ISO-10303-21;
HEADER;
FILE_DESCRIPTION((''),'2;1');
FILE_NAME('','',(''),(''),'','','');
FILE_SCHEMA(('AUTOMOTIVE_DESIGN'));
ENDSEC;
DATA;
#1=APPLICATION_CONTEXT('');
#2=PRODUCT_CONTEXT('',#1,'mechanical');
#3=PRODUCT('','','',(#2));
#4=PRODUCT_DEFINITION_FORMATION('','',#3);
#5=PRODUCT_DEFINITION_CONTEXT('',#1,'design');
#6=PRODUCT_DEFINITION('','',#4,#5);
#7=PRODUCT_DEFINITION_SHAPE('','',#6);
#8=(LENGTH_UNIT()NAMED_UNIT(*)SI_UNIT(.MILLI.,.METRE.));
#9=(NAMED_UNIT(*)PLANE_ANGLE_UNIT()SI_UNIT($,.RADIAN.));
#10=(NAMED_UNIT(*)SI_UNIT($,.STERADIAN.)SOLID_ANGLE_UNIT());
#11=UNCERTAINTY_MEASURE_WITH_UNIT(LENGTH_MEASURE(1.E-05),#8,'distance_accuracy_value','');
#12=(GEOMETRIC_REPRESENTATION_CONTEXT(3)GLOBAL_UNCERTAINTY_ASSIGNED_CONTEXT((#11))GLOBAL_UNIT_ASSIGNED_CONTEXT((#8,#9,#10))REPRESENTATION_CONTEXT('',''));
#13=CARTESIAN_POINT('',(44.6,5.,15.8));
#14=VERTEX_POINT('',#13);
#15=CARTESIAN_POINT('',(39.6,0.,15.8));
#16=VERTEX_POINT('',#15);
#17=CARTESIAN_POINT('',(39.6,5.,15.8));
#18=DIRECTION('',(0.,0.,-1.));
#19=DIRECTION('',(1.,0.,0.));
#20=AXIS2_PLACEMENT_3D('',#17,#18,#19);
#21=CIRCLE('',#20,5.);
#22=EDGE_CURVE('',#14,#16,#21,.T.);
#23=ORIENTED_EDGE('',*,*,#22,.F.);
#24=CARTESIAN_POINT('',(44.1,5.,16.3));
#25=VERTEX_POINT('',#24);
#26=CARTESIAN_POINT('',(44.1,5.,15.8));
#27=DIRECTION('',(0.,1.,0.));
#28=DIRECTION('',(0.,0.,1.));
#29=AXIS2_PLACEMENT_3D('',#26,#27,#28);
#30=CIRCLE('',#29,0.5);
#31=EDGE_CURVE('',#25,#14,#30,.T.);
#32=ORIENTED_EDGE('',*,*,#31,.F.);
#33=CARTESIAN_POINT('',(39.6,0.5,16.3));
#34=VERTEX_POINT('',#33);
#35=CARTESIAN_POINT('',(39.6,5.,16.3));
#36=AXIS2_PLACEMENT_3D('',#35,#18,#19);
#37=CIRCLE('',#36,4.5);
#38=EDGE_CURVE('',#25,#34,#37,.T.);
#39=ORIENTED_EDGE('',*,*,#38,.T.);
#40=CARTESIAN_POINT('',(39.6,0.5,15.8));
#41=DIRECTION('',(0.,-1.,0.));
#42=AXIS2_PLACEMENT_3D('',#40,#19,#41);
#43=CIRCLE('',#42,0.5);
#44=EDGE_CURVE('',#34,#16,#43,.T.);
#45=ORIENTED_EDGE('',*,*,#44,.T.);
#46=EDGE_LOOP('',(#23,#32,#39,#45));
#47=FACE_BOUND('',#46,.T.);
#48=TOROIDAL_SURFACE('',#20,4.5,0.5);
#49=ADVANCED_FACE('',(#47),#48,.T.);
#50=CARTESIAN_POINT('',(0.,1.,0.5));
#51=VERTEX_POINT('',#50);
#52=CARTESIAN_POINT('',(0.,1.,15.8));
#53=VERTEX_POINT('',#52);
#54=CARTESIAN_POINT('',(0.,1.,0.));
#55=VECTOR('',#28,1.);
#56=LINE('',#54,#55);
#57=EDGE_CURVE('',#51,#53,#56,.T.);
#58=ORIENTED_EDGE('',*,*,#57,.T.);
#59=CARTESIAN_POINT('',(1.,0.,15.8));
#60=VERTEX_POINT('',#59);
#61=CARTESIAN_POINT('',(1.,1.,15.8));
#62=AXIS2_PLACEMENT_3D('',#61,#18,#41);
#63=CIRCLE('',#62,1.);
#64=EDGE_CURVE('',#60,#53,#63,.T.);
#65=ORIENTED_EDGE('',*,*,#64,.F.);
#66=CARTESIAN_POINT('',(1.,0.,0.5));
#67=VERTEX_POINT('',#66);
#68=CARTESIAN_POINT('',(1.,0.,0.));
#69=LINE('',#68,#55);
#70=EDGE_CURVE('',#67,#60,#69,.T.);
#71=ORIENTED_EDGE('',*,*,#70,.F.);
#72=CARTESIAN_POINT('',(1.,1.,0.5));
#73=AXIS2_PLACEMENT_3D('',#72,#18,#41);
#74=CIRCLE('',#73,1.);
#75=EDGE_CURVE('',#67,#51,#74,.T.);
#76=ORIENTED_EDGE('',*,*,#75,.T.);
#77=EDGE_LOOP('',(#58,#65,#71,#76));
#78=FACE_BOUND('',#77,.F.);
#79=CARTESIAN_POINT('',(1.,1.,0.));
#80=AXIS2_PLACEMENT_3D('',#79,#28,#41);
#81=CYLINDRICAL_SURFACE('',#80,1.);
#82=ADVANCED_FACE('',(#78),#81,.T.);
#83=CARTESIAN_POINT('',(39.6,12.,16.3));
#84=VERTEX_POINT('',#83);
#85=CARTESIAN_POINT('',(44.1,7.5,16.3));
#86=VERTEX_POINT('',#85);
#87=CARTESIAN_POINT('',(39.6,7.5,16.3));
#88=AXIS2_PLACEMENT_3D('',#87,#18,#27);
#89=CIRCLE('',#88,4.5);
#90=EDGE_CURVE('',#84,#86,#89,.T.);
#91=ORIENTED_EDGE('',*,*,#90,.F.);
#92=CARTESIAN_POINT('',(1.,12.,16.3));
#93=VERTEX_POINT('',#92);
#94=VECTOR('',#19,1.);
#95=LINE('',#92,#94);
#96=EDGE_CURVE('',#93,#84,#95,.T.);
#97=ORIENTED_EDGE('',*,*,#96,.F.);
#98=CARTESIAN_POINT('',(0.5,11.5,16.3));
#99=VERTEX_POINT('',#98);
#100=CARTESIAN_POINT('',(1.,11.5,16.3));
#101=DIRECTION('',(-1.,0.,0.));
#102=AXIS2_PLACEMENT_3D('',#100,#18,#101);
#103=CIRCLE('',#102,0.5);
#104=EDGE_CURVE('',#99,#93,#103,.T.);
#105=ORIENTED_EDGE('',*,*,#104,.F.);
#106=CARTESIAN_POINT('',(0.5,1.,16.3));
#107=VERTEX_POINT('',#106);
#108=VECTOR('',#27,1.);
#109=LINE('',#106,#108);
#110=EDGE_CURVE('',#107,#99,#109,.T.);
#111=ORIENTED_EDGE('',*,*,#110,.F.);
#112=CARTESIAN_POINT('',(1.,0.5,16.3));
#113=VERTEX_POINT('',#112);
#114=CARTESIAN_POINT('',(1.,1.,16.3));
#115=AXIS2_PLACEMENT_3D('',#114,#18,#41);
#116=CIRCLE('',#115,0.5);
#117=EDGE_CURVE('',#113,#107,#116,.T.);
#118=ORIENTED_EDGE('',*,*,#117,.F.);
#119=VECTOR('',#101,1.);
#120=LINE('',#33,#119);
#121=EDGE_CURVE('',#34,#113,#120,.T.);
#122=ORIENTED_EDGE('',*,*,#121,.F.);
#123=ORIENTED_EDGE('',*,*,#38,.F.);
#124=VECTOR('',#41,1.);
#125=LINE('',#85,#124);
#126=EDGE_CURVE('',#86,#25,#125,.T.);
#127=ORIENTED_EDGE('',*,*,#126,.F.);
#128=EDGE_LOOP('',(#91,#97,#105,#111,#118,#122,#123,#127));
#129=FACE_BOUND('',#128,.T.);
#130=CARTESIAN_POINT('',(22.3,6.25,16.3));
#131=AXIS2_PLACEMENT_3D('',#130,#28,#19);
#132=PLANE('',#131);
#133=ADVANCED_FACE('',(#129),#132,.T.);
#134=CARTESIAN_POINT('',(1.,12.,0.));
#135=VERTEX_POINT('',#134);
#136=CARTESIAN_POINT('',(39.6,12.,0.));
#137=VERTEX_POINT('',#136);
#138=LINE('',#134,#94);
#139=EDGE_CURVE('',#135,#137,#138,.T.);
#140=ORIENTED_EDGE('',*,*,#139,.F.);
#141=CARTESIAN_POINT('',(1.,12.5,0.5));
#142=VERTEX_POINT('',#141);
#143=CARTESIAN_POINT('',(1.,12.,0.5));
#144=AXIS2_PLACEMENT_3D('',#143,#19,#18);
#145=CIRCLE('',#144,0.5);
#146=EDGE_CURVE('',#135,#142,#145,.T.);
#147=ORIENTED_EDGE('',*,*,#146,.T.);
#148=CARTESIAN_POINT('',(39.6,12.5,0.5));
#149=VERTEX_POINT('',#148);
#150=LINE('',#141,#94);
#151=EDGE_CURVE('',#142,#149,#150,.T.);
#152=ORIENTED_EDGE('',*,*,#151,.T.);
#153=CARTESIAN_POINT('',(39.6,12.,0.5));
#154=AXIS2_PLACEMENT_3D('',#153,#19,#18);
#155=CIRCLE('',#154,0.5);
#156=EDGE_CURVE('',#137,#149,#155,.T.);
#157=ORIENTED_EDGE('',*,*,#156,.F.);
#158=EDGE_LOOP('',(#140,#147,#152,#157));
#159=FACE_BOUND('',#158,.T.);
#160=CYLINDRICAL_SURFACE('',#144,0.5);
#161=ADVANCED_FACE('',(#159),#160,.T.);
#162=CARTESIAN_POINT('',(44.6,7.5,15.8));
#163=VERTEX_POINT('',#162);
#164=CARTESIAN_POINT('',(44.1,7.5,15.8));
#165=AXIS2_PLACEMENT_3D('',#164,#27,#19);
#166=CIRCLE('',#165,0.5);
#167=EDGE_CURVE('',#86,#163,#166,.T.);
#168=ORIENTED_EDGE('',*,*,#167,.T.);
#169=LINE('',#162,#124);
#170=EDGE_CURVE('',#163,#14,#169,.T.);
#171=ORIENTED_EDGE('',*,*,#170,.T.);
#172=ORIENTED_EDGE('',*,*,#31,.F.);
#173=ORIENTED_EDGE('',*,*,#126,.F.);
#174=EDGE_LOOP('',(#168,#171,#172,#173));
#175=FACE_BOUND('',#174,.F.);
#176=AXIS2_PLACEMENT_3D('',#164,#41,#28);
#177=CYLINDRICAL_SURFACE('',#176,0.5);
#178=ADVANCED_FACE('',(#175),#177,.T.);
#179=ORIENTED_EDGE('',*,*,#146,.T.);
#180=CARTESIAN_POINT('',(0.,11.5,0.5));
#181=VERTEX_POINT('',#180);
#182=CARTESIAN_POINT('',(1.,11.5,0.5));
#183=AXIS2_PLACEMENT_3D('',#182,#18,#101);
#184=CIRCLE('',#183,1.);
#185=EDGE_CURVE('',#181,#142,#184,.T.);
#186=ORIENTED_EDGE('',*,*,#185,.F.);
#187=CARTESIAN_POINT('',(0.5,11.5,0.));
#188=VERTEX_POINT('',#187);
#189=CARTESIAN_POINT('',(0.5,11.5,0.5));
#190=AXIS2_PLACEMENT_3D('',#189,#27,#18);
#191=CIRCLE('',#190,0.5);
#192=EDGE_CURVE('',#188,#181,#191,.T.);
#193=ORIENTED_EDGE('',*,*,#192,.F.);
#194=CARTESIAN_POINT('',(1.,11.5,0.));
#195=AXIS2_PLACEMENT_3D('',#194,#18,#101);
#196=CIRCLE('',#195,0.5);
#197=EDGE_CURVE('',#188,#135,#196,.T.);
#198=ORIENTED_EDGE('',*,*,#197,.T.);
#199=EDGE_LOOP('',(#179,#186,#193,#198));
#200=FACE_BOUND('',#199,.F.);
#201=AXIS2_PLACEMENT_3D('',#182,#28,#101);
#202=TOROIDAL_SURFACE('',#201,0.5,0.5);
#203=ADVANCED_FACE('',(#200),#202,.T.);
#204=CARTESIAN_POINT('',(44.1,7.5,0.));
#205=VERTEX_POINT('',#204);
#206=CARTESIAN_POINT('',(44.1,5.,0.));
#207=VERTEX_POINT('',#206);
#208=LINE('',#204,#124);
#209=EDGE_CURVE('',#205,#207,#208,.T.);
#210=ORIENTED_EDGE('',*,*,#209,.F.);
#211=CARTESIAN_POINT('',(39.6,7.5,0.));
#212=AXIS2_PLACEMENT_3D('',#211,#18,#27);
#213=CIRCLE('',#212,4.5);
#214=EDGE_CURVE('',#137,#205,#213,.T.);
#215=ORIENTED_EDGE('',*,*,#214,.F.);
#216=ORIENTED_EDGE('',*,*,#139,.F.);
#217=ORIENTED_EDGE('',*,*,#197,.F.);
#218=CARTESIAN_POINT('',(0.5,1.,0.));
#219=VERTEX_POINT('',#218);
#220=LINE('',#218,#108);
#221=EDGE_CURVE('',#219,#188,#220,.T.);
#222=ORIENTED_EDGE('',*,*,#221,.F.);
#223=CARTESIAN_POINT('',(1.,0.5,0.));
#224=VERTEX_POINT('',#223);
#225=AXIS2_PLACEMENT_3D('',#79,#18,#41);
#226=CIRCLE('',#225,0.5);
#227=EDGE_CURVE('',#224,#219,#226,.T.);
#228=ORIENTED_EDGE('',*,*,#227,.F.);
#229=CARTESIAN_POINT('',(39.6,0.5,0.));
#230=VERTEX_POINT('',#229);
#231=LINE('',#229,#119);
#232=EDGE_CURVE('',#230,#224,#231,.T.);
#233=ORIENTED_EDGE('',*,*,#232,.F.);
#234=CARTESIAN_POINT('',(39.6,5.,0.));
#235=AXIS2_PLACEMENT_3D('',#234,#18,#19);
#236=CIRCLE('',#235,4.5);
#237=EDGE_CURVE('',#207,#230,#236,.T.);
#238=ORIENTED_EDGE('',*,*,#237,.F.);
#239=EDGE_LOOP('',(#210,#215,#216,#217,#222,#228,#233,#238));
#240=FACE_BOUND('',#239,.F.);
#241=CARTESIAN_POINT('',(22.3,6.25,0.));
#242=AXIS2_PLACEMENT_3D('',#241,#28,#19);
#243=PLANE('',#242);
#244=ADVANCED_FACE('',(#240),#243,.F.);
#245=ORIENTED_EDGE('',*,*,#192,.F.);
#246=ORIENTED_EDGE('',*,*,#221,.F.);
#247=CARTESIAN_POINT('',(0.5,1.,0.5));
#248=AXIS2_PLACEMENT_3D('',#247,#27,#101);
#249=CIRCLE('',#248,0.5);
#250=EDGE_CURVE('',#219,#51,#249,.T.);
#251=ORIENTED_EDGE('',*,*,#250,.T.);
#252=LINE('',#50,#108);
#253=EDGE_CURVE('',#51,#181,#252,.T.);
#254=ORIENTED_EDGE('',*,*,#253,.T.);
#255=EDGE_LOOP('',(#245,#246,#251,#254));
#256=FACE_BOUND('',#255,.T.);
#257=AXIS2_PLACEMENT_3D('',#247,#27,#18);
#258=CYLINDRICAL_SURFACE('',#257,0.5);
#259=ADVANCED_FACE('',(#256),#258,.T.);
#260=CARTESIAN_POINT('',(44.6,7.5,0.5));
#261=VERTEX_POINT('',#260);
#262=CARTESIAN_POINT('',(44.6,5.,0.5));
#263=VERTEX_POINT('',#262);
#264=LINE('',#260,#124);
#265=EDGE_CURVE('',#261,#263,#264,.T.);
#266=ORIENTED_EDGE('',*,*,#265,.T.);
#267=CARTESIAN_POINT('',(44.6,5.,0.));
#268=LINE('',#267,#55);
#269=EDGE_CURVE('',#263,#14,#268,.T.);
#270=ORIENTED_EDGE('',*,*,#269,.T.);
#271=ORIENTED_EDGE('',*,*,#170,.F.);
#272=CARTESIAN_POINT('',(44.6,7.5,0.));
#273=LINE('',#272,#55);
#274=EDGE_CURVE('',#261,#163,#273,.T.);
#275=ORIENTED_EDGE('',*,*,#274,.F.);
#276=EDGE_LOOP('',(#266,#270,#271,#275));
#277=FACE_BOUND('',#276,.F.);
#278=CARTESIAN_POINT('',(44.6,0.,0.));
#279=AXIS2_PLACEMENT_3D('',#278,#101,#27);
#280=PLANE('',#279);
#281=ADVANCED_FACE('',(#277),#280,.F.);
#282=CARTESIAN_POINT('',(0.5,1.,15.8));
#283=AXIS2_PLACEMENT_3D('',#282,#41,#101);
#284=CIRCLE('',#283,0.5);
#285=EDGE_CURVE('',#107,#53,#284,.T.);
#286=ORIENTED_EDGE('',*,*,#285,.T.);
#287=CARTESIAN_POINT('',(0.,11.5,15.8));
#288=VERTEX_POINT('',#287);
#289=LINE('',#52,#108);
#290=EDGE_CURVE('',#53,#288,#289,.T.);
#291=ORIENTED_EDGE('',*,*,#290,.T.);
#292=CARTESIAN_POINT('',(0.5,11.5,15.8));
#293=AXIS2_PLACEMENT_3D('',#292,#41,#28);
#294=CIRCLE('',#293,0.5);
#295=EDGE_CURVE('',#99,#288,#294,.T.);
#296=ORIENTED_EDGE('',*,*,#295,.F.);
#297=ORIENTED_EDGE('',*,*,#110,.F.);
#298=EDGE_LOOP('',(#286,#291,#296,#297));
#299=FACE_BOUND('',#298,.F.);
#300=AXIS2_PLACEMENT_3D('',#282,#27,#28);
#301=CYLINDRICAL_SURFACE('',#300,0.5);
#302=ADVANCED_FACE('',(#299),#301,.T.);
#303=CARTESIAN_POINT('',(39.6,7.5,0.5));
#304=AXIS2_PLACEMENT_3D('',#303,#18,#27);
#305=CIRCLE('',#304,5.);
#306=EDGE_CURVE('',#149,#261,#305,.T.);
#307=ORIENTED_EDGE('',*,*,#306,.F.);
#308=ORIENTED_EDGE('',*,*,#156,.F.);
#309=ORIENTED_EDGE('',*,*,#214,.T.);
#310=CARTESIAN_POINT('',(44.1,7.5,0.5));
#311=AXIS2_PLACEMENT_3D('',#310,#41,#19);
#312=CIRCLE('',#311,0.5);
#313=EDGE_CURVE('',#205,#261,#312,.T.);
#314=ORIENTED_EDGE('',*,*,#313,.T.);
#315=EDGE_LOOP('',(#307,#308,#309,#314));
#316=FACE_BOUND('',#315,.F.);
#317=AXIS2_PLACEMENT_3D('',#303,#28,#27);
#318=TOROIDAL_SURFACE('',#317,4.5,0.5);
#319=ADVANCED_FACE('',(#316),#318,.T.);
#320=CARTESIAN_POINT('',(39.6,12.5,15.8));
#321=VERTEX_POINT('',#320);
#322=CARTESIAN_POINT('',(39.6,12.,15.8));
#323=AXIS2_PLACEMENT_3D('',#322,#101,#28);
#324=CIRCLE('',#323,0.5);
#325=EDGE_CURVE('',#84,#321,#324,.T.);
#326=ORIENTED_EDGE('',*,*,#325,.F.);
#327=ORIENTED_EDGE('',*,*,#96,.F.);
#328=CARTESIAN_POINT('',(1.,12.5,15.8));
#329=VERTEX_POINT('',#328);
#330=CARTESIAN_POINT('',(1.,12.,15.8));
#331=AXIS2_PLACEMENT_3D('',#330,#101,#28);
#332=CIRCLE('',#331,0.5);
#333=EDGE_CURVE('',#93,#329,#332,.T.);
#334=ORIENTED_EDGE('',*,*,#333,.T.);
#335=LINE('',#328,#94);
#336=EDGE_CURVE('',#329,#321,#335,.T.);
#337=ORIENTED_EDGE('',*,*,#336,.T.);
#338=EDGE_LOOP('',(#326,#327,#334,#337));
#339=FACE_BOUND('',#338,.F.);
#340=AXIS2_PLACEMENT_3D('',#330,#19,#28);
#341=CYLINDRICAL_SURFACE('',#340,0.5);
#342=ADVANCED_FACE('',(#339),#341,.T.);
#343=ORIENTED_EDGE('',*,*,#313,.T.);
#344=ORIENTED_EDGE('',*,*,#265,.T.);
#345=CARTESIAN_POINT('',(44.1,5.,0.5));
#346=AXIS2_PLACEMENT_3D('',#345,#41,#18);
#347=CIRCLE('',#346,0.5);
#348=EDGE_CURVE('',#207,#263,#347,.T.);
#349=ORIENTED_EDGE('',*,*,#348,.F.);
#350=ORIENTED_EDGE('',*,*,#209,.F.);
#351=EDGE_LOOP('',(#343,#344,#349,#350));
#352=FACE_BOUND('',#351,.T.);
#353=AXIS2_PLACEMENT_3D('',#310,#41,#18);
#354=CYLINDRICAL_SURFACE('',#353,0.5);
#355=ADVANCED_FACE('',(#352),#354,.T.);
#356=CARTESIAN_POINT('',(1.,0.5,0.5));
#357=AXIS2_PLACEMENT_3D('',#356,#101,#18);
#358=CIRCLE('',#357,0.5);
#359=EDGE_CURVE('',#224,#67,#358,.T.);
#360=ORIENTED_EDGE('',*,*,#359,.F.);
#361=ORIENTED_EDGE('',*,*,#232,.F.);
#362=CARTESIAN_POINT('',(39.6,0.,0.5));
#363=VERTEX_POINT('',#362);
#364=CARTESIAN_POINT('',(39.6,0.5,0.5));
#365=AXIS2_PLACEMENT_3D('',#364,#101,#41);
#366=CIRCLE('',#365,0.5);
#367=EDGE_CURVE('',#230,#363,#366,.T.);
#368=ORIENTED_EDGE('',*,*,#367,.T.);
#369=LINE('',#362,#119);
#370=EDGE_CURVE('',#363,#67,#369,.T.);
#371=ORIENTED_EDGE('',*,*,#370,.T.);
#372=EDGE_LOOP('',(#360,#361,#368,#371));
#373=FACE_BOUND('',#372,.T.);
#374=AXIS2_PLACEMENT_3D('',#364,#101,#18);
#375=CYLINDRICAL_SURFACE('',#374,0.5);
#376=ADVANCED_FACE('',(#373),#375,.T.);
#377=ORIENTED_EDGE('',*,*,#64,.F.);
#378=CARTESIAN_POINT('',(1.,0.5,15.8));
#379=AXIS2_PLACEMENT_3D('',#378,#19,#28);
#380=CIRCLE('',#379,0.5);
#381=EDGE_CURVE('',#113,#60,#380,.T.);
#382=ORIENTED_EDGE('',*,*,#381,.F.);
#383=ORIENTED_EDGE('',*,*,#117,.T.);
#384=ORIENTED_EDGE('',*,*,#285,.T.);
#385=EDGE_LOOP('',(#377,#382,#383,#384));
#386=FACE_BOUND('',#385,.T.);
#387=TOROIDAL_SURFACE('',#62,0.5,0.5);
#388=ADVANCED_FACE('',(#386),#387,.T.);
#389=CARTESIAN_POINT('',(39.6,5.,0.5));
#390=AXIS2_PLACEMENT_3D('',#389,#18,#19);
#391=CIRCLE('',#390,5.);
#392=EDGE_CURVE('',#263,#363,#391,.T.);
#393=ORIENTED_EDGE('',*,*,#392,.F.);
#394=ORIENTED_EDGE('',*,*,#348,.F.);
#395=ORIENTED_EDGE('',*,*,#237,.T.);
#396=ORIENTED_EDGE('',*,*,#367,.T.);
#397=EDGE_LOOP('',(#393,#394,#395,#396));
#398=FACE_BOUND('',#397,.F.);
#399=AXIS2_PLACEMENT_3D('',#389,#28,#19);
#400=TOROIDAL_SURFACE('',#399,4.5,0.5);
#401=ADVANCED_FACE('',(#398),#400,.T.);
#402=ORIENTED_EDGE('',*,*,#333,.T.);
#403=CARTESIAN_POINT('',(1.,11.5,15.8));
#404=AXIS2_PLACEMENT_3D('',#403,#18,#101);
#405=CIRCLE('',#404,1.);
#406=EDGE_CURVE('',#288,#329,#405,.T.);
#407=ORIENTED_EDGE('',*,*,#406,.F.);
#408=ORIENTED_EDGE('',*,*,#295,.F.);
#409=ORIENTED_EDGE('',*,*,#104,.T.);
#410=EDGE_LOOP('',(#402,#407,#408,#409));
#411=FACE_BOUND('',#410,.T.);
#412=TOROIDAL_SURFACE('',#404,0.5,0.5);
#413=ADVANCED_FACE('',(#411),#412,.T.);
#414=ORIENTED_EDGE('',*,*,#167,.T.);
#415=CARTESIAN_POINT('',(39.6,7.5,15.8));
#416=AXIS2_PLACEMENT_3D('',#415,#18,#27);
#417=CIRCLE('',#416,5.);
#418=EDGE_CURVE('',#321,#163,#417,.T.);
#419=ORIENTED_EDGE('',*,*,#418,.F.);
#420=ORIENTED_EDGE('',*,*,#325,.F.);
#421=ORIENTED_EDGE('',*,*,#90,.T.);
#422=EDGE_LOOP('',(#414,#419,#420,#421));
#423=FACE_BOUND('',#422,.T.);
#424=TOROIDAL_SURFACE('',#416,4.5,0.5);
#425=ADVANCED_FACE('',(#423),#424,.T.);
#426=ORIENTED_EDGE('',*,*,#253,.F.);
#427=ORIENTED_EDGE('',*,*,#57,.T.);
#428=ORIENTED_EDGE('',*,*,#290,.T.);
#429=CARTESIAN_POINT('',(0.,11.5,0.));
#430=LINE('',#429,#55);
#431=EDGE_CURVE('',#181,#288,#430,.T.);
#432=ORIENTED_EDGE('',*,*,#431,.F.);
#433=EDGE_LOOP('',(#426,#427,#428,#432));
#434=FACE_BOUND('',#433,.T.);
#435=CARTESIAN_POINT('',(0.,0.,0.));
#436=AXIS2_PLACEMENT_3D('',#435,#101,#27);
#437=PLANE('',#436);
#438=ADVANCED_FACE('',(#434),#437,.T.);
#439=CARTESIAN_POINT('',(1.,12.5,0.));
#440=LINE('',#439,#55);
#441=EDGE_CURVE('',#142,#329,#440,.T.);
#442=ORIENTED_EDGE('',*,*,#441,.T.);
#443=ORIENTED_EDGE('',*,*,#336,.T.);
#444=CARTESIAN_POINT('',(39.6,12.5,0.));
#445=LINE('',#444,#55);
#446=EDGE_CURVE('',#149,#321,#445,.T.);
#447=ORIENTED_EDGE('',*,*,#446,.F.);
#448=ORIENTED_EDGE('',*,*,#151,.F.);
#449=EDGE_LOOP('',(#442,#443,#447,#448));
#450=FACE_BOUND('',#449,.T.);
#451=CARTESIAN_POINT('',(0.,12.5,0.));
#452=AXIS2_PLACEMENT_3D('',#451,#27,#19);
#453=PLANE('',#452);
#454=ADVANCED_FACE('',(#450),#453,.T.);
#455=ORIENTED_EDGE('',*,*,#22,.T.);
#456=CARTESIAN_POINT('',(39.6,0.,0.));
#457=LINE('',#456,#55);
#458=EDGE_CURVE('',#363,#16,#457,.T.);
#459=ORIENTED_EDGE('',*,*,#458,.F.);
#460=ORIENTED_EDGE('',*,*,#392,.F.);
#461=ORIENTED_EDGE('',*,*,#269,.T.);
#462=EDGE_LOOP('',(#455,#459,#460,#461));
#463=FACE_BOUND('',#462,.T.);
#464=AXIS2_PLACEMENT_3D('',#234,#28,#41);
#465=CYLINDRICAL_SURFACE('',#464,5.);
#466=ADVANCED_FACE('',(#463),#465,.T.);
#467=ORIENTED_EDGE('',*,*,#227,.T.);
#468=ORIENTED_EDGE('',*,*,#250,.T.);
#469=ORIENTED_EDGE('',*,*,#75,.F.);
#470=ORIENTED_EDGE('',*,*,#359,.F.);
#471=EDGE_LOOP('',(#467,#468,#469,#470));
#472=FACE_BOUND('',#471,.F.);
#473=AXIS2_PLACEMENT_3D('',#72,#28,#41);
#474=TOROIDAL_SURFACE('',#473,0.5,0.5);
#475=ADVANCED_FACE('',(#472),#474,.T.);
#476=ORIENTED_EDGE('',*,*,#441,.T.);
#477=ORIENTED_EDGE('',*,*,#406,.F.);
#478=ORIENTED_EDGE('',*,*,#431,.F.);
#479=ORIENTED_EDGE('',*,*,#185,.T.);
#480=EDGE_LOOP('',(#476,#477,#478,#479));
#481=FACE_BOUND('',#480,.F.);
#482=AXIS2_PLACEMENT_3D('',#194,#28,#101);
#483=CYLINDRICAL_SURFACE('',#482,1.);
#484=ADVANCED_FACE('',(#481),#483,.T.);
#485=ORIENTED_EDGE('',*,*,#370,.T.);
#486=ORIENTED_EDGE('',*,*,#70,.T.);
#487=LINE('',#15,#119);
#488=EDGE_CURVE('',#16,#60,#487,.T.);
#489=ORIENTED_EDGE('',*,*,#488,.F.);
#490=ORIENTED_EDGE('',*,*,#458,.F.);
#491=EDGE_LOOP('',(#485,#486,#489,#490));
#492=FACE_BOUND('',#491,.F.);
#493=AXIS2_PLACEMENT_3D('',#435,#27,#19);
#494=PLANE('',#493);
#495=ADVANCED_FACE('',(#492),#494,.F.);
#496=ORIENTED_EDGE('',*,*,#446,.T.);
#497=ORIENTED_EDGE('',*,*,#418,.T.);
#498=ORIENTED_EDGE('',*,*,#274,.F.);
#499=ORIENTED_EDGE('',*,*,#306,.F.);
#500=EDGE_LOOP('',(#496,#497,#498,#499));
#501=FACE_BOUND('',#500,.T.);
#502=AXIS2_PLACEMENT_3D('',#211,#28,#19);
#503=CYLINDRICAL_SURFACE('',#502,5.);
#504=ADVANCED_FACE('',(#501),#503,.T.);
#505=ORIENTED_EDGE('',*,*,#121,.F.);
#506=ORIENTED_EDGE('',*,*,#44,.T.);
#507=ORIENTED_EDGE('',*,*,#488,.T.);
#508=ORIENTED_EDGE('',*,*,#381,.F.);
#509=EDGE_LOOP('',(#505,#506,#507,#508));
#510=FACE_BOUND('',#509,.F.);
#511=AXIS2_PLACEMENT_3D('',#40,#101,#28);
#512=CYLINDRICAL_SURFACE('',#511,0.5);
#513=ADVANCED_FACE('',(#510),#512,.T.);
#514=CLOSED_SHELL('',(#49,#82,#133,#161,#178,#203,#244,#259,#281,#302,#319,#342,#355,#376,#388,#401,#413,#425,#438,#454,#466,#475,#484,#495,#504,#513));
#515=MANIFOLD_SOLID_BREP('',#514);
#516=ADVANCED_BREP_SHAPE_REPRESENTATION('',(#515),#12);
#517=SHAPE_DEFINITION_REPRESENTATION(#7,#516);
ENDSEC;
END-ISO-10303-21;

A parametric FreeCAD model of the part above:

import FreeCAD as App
import Part
import Sketcher


def edges_at(feature, points):
    """Names of the edges that pass closest to the given points."""
    edges = feature.Shape.Edges
    near = lambda p: min(range(len(edges)), key=lambda i: edges[i].distToShape(Part.Vertex(*p))[0])
    return sorted({f"Edge{near(p) + 1}" for p in points})

doc = App.newDocument("Part")
body = doc.addObject("PartDesign::Body", "Body")

# Sketch on XY plane
sketch1 = doc.addObject("Sketcher::SketchObject", "Sketch")
body.addObject(sketch1)
sketch1.AttachmentSupport = (doc.XY_Plane, [""])
sketch1.MapMode = "FlatFace"
sketch1.addGeometry(Part.LineSegment(App.Vector(0, 12.5, 0), App.Vector(0, 0, 0)), False)
sketch1.addGeometry(Part.LineSegment(App.Vector(0, 0, 0), App.Vector(44.6, 0, 0)), False)
sketch1.addGeometry(Part.LineSegment(App.Vector(44.6, 0, 0), App.Vector(44.6, 12.5, 0)), False)
sketch1.addGeometry(Part.LineSegment(App.Vector(44.6, 12.5, 0), App.Vector(0, 12.5, 0)), False)
sketch1.addConstraint(Sketcher.Constraint("Coincident", 0, 2, 1, 1))
sketch1.addConstraint(Sketcher.Constraint("Coincident", 1, 2, 2, 1))
sketch1.addConstraint(Sketcher.Constraint("Coincident", 2, 2, 3, 1))
sketch1.addConstraint(Sketcher.Constraint("Coincident", 3, 2, 0, 1))
sketch1.addConstraint(Sketcher.Constraint("Vertical", 0))
sketch1.addConstraint(Sketcher.Constraint("Horizontal", 1))
sketch1.addConstraint(Sketcher.Constraint("Vertical", 2))
sketch1.addConstraint(Sketcher.Constraint("Horizontal", 3))
sketch1.addConstraint(Sketcher.Constraint("Coincident", 0, 2, -1, 1))
sketch1.addConstraint(Sketcher.Constraint("DistanceX", 1, 1, 1, 2, 44.6))
sketch1.addConstraint(Sketcher.Constraint("DistanceY", 0, 2, 0, 1, 12.5))
pad1 = doc.addObject("PartDesign::Pad", "Pad")
body.addObject(pad1)
pad1.Profile = sketch1
pad1.Length = 16.3
doc.recompute()

fillet = doc.addObject("PartDesign::Fillet", "Fillet")
body.addObject(fillet)
fillet.Base = (pad1, edges_at(pad1, [(44.6, 0, 8.15), (44.6, 12.5, 8.15)]))
fillet.Radius = 5
doc.recompute()

fillet2 = doc.addObject("PartDesign::Fillet", "Fillet001")
body.addObject(fillet2)
fillet2.Base = (fillet, edges_at(fillet, [(0, 12.5, 8.15), (0, 0, 8.15)]))
fillet2.Radius = 1
doc.recompute()

fillet3 = doc.addObject("PartDesign::Fillet", "Fillet002")
body.addObject(fillet3)
fillet3.Base = (fillet2, edges_at(fillet2, [(20.3, 12.5, 16.3), (20.3, 12.5, 0)]))
fillet3.Radius = 0.5

doc.recompute()
